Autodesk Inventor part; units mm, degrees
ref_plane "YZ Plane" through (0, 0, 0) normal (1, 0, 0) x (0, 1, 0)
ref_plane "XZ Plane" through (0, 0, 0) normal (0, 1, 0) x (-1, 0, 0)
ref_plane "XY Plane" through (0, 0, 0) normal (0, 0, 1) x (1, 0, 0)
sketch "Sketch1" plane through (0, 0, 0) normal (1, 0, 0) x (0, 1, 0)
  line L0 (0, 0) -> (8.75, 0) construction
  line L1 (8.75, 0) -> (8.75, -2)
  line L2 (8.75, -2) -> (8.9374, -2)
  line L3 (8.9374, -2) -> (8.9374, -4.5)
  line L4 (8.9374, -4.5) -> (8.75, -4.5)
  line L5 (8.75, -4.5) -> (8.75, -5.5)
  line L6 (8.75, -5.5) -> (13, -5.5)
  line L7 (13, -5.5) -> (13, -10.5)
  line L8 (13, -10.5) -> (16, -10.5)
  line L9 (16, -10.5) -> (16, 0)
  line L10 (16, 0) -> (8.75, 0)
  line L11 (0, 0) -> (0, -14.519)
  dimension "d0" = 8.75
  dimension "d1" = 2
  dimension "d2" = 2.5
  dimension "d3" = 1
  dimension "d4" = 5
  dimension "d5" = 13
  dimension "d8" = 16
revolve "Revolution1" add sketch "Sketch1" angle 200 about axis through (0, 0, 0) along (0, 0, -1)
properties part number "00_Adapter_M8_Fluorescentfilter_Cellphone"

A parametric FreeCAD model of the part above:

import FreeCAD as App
import Part
import Sketcher
Q = App.Units.Quantity


def add_polygon(sketch, points):
    """Adds a closed chain of lines whose ends are joined by coincident constraints."""
    first, n = sketch.GeometryCount, len(points)
    for a, b in zip(points, points[1:] + points[:1]):
        sketch.addGeometry(Part.LineSegment(App.Vector(*a, 0), App.Vector(*b, 0)), False)
    for i in range(n):
        sketch.addConstraint(Sketcher.Constraint("Coincident", first + i, 2, first + (i + 1) % n, 1))

doc = App.newDocument("Part")
body = doc.addObject("PartDesign::Body", "Body")

# Sketch on YZ plane
sketch1 = body.newObject("Sketcher::SketchObject", "Sketch")
sketch1.AttachmentSupport = (doc.getObject("YZ_Plane"), [""])
sketch1.MapMode = "FlatFace"
add_polygon(sketch1, [(16, 0), (8.75, 0), (8.75, -2), (8.9374, -2), (8.9374, -4.5), (8.75, -4.5), (8.75, -5.5), (13, -5.5), (13, -10.5), (16, -10.5)])  # lines 0-9
sketch1.addConstraint(Sketcher.Constraint("Horizontal", 0))
sketch1.addConstraint(Sketcher.Constraint("Vertical", 1))
sketch1.addConstraint(Sketcher.Constraint("Horizontal", 2))
sketch1.addConstraint(Sketcher.Constraint("Vertical", 3))
sketch1.addConstraint(Sketcher.Constraint("Horizontal", 4))
sketch1.addConstraint(Sketcher.Constraint("Vertical", 5))
sketch1.addConstraint(Sketcher.Constraint("Horizontal", 6))
sketch1.addConstraint(Sketcher.Constraint("Vertical", 7))
sketch1.addConstraint(Sketcher.Constraint("Horizontal", 8))
sketch1.addConstraint(Sketcher.Constraint("Vertical", 9))
sketch1.addConstraint(Sketcher.Constraint("PointOnObject", 0, 2, -1))
sketch1.addConstraint(Sketcher.Constraint("Vertical", 1, 2, 4, 2))
sketch1.addConstraint(Sketcher.Constraint("DistanceY", 1, 2, 1, 1, Q("2 mm")))
sketch1.addConstraint(Sketcher.Constraint("DistanceY", 5, 2, 5, 1, Q("1 mm")))
sketch1.addConstraint(Sketcher.Constraint("DistanceY", 7, 2, 7, 1, Q("5 mm")))
sketch1.addConstraint(Sketcher.Constraint("DistanceY", 3, 2, 3, 1, Q("2.5 mm")))
sketch1.addConstraint(Sketcher.Constraint("DistanceX", -1, 1, 6, 2, Q("13 mm")))
sketch1.addConstraint(Sketcher.Constraint("DistanceX", -1, 1, 8, 2, Q("16 mm")))
sketch1.addConstraint(Sketcher.Constraint("DistanceX", -1, 1, 0, 2, Q("8.75 mm")))
sketch1.addConstraint(Sketcher.Constraint("DistanceX", 2, 1, 2, 2, Q("0.1874 mm")))
revolution = body.newObject("PartDesign::Revolution", "Revolution")
revolution.Profile = sketch1
revolution.ReferenceAxis = (sketch1, ["V_Axis"])
revolution.Angle = 200
revolution.Reversed = True

doc.recompute()
